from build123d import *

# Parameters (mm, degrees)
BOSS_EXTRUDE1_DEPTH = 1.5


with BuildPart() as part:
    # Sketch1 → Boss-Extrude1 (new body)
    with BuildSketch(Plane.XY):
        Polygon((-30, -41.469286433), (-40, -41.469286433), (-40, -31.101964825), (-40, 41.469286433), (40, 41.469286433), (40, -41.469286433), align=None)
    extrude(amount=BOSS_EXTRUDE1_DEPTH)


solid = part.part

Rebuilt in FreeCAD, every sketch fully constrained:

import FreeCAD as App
import Part
import Sketcher

doc = App.newDocument("Part")
body = doc.addObject("PartDesign::Body", "Body")

sketch1 = doc.addObject("Sketcher::SketchObject", "Sketch")
body.addObject(sketch1)
sketch1.AttachmentSupport = (doc.XY_Plane, [""])
sketch1.MapMode = "FlatFace"
sketch1.addGeometry([
    Part.LineSegment(App.Vector(-40, -41.469286, 0), App.Vector(40, -41.469286, 0)),
    Part.LineSegment(App.Vector(40, -41.469286, 0), App.Vector(40, 41.469286, 0)),
    Part.LineSegment(App.Vector(40, 41.469286, 0), App.Vector(-40, 41.469286, 0)),
    Part.LineSegment(App.Vector(-40, 41.469286, 0), App.Vector(-40, -41.469286, 0)),
], False)
sketch1.addConstraint([
    Sketcher.Constraint("Coincident", 0, 2, 1, 1),
    Sketcher.Constraint("Coincident", 1, 2, 2, 1),
    Sketcher.Constraint("Coincident", 2, 2, 3, 1),
    Sketcher.Constraint("Coincident", 3, 2, 0, 1),
    Sketcher.Constraint("Horizontal", 0),
    Sketcher.Constraint("Vertical", 1),
    Sketcher.Constraint("Horizontal", 2),
    Sketcher.Constraint("Vertical", 3),
    Sketcher.Constraint("Symmetric", 0, 2, 2, 2, -1, 1),
    Sketcher.Constraint("DistanceX", 0, 1, 0, 2, 80.0),
    Sketcher.Constraint("DistanceY", 1, 1, 1, 2, 82.938573),
])
pad1 = doc.addObject("PartDesign::Pad", "Pad")
body.addObject(pad1)
pad1.Profile = sketch1
pad1.Length = 1.5

doc.recompute()
